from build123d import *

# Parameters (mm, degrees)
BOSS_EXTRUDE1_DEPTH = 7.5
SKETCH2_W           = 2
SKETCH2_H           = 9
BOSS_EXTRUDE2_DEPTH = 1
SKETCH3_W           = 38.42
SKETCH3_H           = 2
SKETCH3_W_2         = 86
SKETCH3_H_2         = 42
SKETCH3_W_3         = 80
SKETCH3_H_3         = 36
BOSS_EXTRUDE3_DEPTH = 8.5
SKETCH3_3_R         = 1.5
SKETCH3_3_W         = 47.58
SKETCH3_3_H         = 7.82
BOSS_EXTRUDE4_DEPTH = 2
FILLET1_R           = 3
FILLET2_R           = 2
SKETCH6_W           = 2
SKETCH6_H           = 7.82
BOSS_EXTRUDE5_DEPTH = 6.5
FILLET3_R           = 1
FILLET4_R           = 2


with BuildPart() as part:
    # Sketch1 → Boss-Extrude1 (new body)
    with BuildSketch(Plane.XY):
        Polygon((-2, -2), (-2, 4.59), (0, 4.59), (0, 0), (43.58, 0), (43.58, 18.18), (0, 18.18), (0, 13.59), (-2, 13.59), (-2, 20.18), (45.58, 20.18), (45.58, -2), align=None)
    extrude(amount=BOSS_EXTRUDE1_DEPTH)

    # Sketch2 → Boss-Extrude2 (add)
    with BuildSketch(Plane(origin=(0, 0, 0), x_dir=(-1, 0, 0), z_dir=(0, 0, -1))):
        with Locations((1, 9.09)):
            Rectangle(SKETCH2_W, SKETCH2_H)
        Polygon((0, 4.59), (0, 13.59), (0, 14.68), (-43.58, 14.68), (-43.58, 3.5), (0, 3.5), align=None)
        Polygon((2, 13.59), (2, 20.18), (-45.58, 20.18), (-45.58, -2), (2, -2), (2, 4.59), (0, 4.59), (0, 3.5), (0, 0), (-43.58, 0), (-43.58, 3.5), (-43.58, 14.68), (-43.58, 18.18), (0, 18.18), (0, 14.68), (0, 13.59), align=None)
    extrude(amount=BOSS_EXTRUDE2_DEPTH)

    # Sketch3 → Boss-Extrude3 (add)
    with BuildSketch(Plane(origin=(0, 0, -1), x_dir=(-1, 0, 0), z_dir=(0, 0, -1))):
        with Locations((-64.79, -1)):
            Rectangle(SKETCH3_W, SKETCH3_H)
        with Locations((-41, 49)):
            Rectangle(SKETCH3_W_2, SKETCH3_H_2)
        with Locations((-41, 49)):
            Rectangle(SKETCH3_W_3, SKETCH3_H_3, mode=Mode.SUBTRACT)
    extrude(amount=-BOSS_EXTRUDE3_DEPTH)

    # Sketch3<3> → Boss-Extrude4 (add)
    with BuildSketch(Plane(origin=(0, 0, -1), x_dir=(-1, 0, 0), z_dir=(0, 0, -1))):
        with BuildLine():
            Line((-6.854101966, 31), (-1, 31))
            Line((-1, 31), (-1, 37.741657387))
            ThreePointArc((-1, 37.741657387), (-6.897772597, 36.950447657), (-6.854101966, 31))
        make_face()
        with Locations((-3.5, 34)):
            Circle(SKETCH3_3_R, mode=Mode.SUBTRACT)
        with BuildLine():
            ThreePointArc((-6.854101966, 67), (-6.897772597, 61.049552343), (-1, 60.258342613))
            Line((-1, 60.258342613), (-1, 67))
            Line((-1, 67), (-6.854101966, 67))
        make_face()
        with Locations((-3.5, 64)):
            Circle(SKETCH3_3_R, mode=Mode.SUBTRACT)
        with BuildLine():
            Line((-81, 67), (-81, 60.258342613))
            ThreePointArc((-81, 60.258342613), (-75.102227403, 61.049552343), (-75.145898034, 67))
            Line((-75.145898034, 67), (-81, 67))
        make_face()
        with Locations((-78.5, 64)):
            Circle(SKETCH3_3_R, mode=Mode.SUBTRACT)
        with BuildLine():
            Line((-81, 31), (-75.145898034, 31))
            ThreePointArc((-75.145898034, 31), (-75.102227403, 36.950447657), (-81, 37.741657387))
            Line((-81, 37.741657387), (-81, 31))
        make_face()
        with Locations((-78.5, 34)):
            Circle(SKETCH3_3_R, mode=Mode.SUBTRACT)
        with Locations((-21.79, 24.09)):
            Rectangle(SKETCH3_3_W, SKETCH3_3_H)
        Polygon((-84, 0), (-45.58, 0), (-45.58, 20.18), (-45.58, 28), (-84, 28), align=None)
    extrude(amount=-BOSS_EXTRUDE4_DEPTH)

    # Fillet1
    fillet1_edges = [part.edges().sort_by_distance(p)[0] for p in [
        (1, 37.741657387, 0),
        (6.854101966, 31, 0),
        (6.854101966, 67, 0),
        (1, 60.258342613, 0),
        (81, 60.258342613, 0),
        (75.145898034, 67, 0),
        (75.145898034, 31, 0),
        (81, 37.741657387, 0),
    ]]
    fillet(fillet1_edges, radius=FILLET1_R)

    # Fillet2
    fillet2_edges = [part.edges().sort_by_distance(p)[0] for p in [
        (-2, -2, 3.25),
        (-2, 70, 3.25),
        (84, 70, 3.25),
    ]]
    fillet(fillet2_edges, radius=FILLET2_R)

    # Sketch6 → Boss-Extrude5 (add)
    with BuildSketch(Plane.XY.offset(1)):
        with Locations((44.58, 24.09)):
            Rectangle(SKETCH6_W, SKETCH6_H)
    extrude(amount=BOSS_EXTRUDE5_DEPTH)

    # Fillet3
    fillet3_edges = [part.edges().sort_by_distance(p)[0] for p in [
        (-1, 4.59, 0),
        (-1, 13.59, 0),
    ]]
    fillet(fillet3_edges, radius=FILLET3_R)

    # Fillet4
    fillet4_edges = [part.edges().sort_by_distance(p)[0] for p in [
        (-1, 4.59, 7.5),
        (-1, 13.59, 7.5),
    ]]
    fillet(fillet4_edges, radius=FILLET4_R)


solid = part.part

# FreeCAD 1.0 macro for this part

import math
import FreeCAD as App
import Part
import Sketcher

V = App.Vector
Q = App.Units.Quantity


def edges_at(feature, points):
    """Names of the edges that pass closest to the given points."""
    edges = feature.Shape.Edges
    near = lambda p: min(range(len(edges)), key=lambda i: edges[i].distToShape(Part.Vertex(*p))[0])
    return sorted({f"Edge{near(p) + 1}" for p in points})

doc = App.newDocument("Part")
body = doc.addObject("PartDesign::Body", "Body")
body.AllowCompound = True

# Sketch on XY plane
sketch1 = doc.addObject("Sketcher::SketchObject", "Sketch")
body.addObject(sketch1)
sketch1.AttachmentSupport = (doc.XY_Plane, [""])
sketch1.MapMode = "FlatFace"
sketch1.addGeometry([
    Part.LineSegment(V(-2, 4.6, 0), V(-2, -2, 0)),  # 0
    Part.LineSegment(V(-2, -2, 0), V(45.6, -2, 0)),  # 1
    Part.LineSegment(V(45.6, -2, 0), V(45.6, 20.2, 0)),  # 2
    Part.LineSegment(V(45.6, 20.2, 0), V(-2, 20.2, 0)),  # 3
    Part.LineSegment(V(-2, 20.2, 0), V(-2, 13.6, 0)),  # 4
    Part.LineSegment(V(-2, 13.6, 0), V(0, 13.6, 0)),  # 5
    Part.LineSegment(V(0, 13.6, 0), V(0, 18.2, 0)),  # 6
    Part.LineSegment(V(0, 18.2, 0), V(43.6, 18.2, 0)),  # 7
    Part.LineSegment(V(43.6, 18.2, 0), V(43.6, 0, 0)),  # 8
    Part.LineSegment(V(43.6, 0, 0), V(0, 0, 0)),  # 9
    Part.LineSegment(V(0, 0, 0), V(0, 4.6, 0)),  # 10
    Part.LineSegment(V(0, 4.6, 0), V(-2, 4.6, 0)),  # 11
], False)
sketch1.addConstraint([
    Sketcher.Constraint("Coincident", 0, 2, 1, 1),
    Sketcher.Constraint("Coincident", 1, 2, 2, 1),
    Sketcher.Constraint("Coincident", 2, 2, 3, 1),
    Sketcher.Constraint("Coincident", 3, 2, 4, 1),
    Sketcher.Constraint("Coincident", 4, 2, 5, 1),
    Sketcher.Constraint("Coincident", 5, 2, 6, 1),
    Sketcher.Constraint("Coincident", 6, 2, 7, 1),
    Sketcher.Constraint("Coincident", 7, 2, 8, 1),
    Sketcher.Constraint("Coincident", 8, 2, 9, 1),
    Sketcher.Constraint("Coincident", 9, 2, 10, 1),
    Sketcher.Constraint("Coincident", 10, 2, 11, 1),
    Sketcher.Constraint("Coincident", 11, 2, 0, 1),
    Sketcher.Constraint("Vertical", 0),
    Sketcher.Constraint("Horizontal", 1),
    Sketcher.Constraint("Vertical", 2),
    Sketcher.Constraint("Horizontal", 3),
    Sketcher.Constraint("Vertical", 4),
    Sketcher.Constraint("Horizontal", 5),
    Sketcher.Constraint("Vertical", 6),
    Sketcher.Constraint("Horizontal", 7),
    Sketcher.Constraint("Vertical", 8),
    Sketcher.Constraint("Horizontal", 9),
    Sketcher.Constraint("Vertical", 10),
    Sketcher.Constraint("Horizontal", 11),
    Sketcher.Constraint("Coincident", 9, 2, -1, 1),
    Sketcher.Constraint("PointOnObject", 5, 2, -2),
    Sketcher.Constraint("Vertical", 0, 2, 3, 2),
    Sketcher.Constraint("Equal", 0, 4),
    Sketcher.Constraint("Equal", 6, 10),
    Sketcher.Constraint("DistanceX", 5, 1, 5, 2, Q("2 mm")),
    Sketcher.Constraint("DistanceY", 0, 2, -1, 1, Q("2 mm")),
    Sketcher.Constraint("DistanceX", 7, 2, 2, 2, Q("2 mm")),
    Sketcher.Constraint("DistanceY", 10, 2, 5, 2, Q("9 mm")),
    Sketcher.Constraint("DistanceX", 1, 1, 1, 2, Q("47.58 mm")),
    Sketcher.Constraint("DistanceY", 0, 2, 0, 1, Q("6.59 mm")),
])
pad1 = doc.addObject("PartDesign::Pad", "Pad")
body.addObject(pad1)
pad1.Profile = sketch1
pad1.Length = 7.5

# Sketch on XY plane
sketch2 = doc.addObject("Sketcher::SketchObject", "Sketch001")
body.addObject(sketch2)
sketch2.AttachmentSupport = (doc.XY_Plane, [""])
sketch2.MapMode = "FlatFace"
sketch2.addGeometry([
    Part.LineSegment(V(-2, 20.2, 0), V(45.6, 20.2, 0)),  # 0
    Part.LineSegment(V(45.6, 20.2, 0), V(45.6, -2, 0)),  # 1
    Part.LineSegment(V(45.6, -2, 0), V(-2, -2, 0)),  # 2
    Part.LineSegment(V(-2, -2, 0), V(-2, 20.2, 0)),  # 3
    Part.LineSegment(V(0, 14.7, 0), V(43.6, 14.7, 0)),  # 4
    Part.LineSegment(V(43.6, 14.7, 0), V(43.6, 18.2, 0)),  # 5
    Part.LineSegment(V(43.6, 18.2, 0), V(0, 18.2, 0)),  # 6
    Part.LineSegment(V(0, 18.2, 0), V(0, 14.7, 0)),  # 7
    Part.LineSegment(V(43.6, 3.5, 0), V(0, 3.5, 0)),  # 8
    Part.LineSegment(V(0, 3.5, 0), V(0, 0, 0)),  # 9
    Part.LineSegment(V(0, 0, 0), V(43.6, 0, 0)),  # 10
    Part.LineSegment(V(43.6, 0, 0), V(43.6, 3.5, 0)),  # 11
], False)
sketch2.addConstraint([
    Sketcher.Constraint("Coincident", 0, 2, 1, 1),
    Sketcher.Constraint("Coincident", 1, 2, 2, 1),
    Sketcher.Constraint("Coincident", 2, 2, 3, 1),
    Sketcher.Constraint("Coincident", 3, 2, 0, 1),
    Sketcher.Constraint("Coincident", 4, 2, 5, 1),
    Sketcher.Constraint("Coincident", 5, 2, 6, 1),
    Sketcher.Constraint("Coincident", 6, 2, 7, 1),
    Sketcher.Constraint("Coincident", 7, 2, 4, 1),
    Sketcher.Constraint("Coincident", 8, 2, 9, 1),
    Sketcher.Constraint("Coincident", 9, 2, 10, 1),
    Sketcher.Constraint("Coincident", 10, 2, 11, 1),
    Sketcher.Constraint("Coincident", 11, 2, 8, 1),
    Sketcher.Constraint("Horizontal", 0),
    Sketcher.Constraint("Vertical", 1),
    Sketcher.Constraint("Horizontal", 2),
    Sketcher.Constraint("Vertical", 3),
    Sketcher.Constraint("Horizontal", 4),
    Sketcher.Constraint("Vertical", 5),
    Sketcher.Constraint("Horizontal", 6),
    Sketcher.Constraint("Vertical", 7),
    Sketcher.Constraint("Horizontal", 8),
    Sketcher.Constraint("Vertical", 9),
    Sketcher.Constraint("Horizontal", 10),
    Sketcher.Constraint("Vertical", 11),
    Sketcher.Constraint("Coincident", 9, 2, -1, 1),
    Sketcher.Constraint("PointOnObject", 6, 2, -2),
    Sketcher.Constraint("Vertical", 5, 2, 10, 2),
    Sketcher.Constraint("Equal", 7, 9),
    Sketcher.Constraint("DistanceY", 5, 1, 5, 2, Q("3.5 mm")),
    Sketcher.Constraint("DistanceY", 1, 2, -1, 1, Q("2 mm")),
    Sketcher.Constraint("DistanceX", 2, 2, -1, 1, Q("2 mm")),
    Sketcher.Constraint("DistanceX", 4, 2, 0, 2, Q("2 mm")),
    Sketcher.Constraint("DistanceY", 5, 2, 0, 2, Q("2 mm")),
    Sketcher.Constraint("DistanceX", 0, 1, 0, 2, Q("47.58 mm")),
    Sketcher.Constraint("DistanceY", 1, 2, 1, 1, Q("22.18 mm")),
])
pad2 = doc.addObject("PartDesign::Pad", "Pad001")
body.addObject(pad2)
pad2.Profile = sketch2
pad2.Length = 1
pad2.Reversed = True

# Sketch on XY plane
sketch3 = doc.addObject("Sketcher::SketchObject", "Sketch002")
body.addObject(sketch3)
sketch3.AttachmentSupport = (doc.XY_Plane, [""])
sketch3.MapMode = "FlatFace"
sketch3.AttachmentOffset = App.Placement(V(0, 0, -1), App.Rotation())
sketch3.addGeometry([
    Part.LineSegment(V(84, 0, 0), V(84, -2, 0)),  # 0
    Part.LineSegment(V(84, -2, 0), V(45.6, -2, 0)),  # 1
    Part.LineSegment(V(45.6, -2, 0), V(45.6, 0, 0)),  # 2
    Part.LineSegment(V(45.6, 0, 0), V(84, 0, 0)),  # 3
    Part.LineSegment(V(84, 70, 0), V(84, 28, 0)),  # 4
    Part.LineSegment(V(84, 28, 0), V(-2, 28, 0)),  # 5
    Part.LineSegment(V(-2, 28, 0), V(-2, 70, 0)),  # 6
    Part.LineSegment(V(-2, 70, 0), V(84, 70, 0)),  # 7
    Part.LineSegment(V(1, 31, 0), V(81, 31, 0)),  # 8
    Part.LineSegment(V(81, 31, 0), V(81, 67, 0)),  # 9
    Part.LineSegment(V(81, 67, 0), V(1, 67, 0)),  # 10
    Part.LineSegment(V(1, 67, 0), V(1, 31, 0)),  # 11
], False)
sketch3.addConstraint([
    Sketcher.Constraint("Coincident", 0, 2, 1, 1),
    Sketcher.Constraint("Coincident", 1, 2, 2, 1),
    Sketcher.Constraint("Coincident", 2, 2, 3, 1),
    Sketcher.Constraint("Coincident", 3, 2, 0, 1),
    Sketcher.Constraint("Coincident", 4, 2, 5, 1),
    Sketcher.Constraint("Coincident", 5, 2, 6, 1),
    Sketcher.Constraint("Coincident", 6, 2, 7, 1),
    Sketcher.Constraint("Coincident", 7, 2, 4, 1),
    Sketcher.Constraint("Coincident", 8, 2, 9, 1),
    Sketcher.Constraint("Coincident", 9, 2, 10, 1),
    Sketcher.Constraint("Coincident", 10, 2, 11, 1),
    Sketcher.Constraint("Coincident", 11, 2, 8, 1),
    Sketcher.Constraint("Vertical", 0),
    Sketcher.Constraint("Horizontal", 1),
    Sketcher.Constraint("Vertical", 2),
    Sketcher.Constraint("Horizontal", 3),
    Sketcher.Constraint("Vertical", 4),
    Sketcher.Constraint("Horizontal", 5),
    Sketcher.Constraint("Vertical", 6),
    Sketcher.Constraint("Horizontal", 7),
    Sketcher.Constraint("Horizontal", 8),
    Sketcher.Constraint("Vertical", 9),
    Sketcher.Constraint("Horizontal", 10),
    Sketcher.Constraint("Vertical", 11),
    Sketcher.Constraint("PointOnObject", 2, 2, -1),
    Sketcher.Constraint("Vertical", 3, 2, 4, 2),
    Sketcher.Constraint("DistanceX", 5, 2, 5, 1, Q("86 mm")),
    Sketcher.Constraint("DistanceX", 8, 1, 8, 2, Q("80 mm")),
    Sketcher.Constraint("DistanceY", 0, 2, 0, 1, Q("2 mm")),
    Sketcher.Constraint("DistanceY", 4, 2, 4, 1, Q("42 mm")),
    Sketcher.Constraint("DistanceY", 9, 1, 9, 2, Q("36 mm")),
    Sketcher.Constraint("DistanceX", -1, 1, 0, 2, Q("84 mm")),
    Sketcher.Constraint("DistanceY", -1, 1, 4, 2, Q("28 mm")),
    Sketcher.Constraint("DistanceX", -1, 1, 8, 2, Q("81 mm")),
    Sketcher.Constraint("DistanceY", -1, 1, 8, 2, Q("31 mm")),
    Sketcher.Constraint("DistanceX", 1, 2, 1, 1, Q("38.42 mm")),
])
pad3 = doc.addObject("PartDesign::Pad", "Pad002")
body.addObject(pad3)
pad3.Profile = sketch3
pad3.Length = 8.5

# Sketch on XY plane
sketch4 = doc.addObject("Sketcher::SketchObject", "Sketch003")
body.addObject(sketch4)
sketch4.AttachmentSupport = (doc.XY_Plane, [""])
sketch4.MapMode = "FlatFace"
sketch4.AttachmentOffset = App.Placement(V(0, 0, -1), App.Rotation())
sketch4.addGeometry([
    Part.LineSegment(V(6.9, 31, 0), V(1, 31, 0)),  # 0
    Part.LineSegment(V(1, 31, 0), V(1, 37.7, 0)),  # 1
    Part.ArcOfCircle(Part.Circle(V(3.5, 34, 0), V(0, 0, 1), 4.5), math.radians(-42), math.radians(124)),  # 2
    Part.Circle(V(3.5, 34, 0), V(0, 0, 1), 1.5),  # 3
    Part.ArcOfCircle(Part.Circle(V(3.5, 64, 0), V(0, 0, 1), 4.5), math.radians(-124), math.radians(42)),  # 4
    Part.LineSegment(V(1, 60.3, 0), V(1, 67, 0)),  # 5
    Part.LineSegment(V(1, 67, 0), V(6.9, 67, 0)),  # 6
    Part.Circle(V(3.5, 64, 0), V(0, 0, 1), 1.5),  # 7
    Part.LineSegment(V(81, 67, 0), V(81, 60.3, 0)),  # 8
    Part.ArcOfCircle(Part.Circle(V(78.5, 64, 0), V(0, 0, 1), 4.5), math.radians(138), math.radians(304)),  # 9
    Part.LineSegment(V(75.1, 67, 0), V(81, 67, 0)),  # 10
    Part.Circle(V(78.5, 64, 0), V(0, 0, 1), 1.5),  # 11
    Part.LineSegment(V(81, 31, 0), V(75.1, 31, 0)),  # 12
    Part.ArcOfCircle(Part.Circle(V(78.5, 34, 0), V(0, 0, 1), 4.5), math.radians(56), math.radians(222)),  # 13
    Part.LineSegment(V(81, 37.7, 0), V(81, 31, 0)),  # 14
    Part.Circle(V(78.5, 34, 0), V(0, 0, 1), 1.5),  # 15
    Part.LineSegment(V(45.6, 20.2, 0), V(-2, 20.2, 0)),  # 16
    Part.LineSegment(V(-2, 20.2, 0), V(-2, 28, 0)),  # 17
    Part.LineSegment(V(-2, 28, 0), V(84, 28, 0)),  # 18
    Part.LineSegment(V(84, 28, 0), V(84, 0, 0)),  # 19
    Part.LineSegment(V(84, 0, 0), V(45.6, 0, 0)),  # 20
    Part.LineSegment(V(45.6, 0, 0), V(45.6, 20.2, 0)),  # 21
], False)
sketch4.addConstraint([
    Sketcher.Constraint("Coincident", 0, 2, 1, 1),
    Sketcher.Constraint("Coincident", 1, 2, 2, 2),
    Sketcher.Constraint("Coincident", 2, 1, 0, 1),
    Sketcher.Constraint("Coincident", 4, 1, 5, 1),
    Sketcher.Constraint("Coincident", 5, 2, 6, 1),
    Sketcher.Constraint("Coincident", 6, 2, 4, 2),
    Sketcher.Constraint("Coincident", 8, 2, 9, 2),
    Sketcher.Constraint("Coincident", 9, 1, 10, 1),
    Sketcher.Constraint("Coincident", 10, 2, 8, 1),
    Sketcher.Constraint("Coincident", 12, 2, 13, 2),
    Sketcher.Constraint("Coincident", 13, 1, 14, 1),
    Sketcher.Constraint("Coincident", 14, 2, 12, 1),
    Sketcher.Constraint("Coincident", 16, 2, 17, 1),
    Sketcher.Constraint("Coincident", 17, 2, 18, 1),
    Sketcher.Constraint("Coincident", 18, 2, 19, 1),
    Sketcher.Constraint("Coincident", 19, 2, 20, 1),
    Sketcher.Constraint("Coincident", 20, 2, 21, 1),
    Sketcher.Constraint("Coincident", 21, 2, 16, 1),
    Sketcher.Constraint("Horizontal", 0),
    Sketcher.Constraint("Vertical", 1),
    Sketcher.Constraint("Vertical", 5),
    Sketcher.Constraint("Horizontal", 6),
    Sketcher.Constraint("Vertical", 8),
    Sketcher.Constraint("Horizontal", 10),
    Sketcher.Constraint("Horizontal", 12),
    Sketcher.Constraint("Vertical", 14),
    Sketcher.Constraint("Horizontal", 16),
    Sketcher.Constraint("Vertical", 17),
    Sketcher.Constraint("Horizontal", 18),
    Sketcher.Constraint("Vertical", 19),
    Sketcher.Constraint("Horizontal", 20),
    Sketcher.Constraint("Vertical", 21),
    Sketcher.Constraint("Coincident", 3, 3, 2, 3),
    Sketcher.Constraint("Coincident", 7, 3, 4, 3),
    Sketcher.Constraint("Coincident", 11, 3, 9, 3),
    Sketcher.Constraint("Coincident", 15, 3, 13, 3),
    Sketcher.Constraint("Equal", 2, 4),
    Sketcher.Constraint("Equal", 3, 7),
    Sketcher.Constraint("Equal", 4, 9),
    Sketcher.Constraint("Equal", 7, 11),
    Sketcher.Constraint("Equal", 9, 13),
    Sketcher.Constraint("Equal", 11, 15),
    Sketcher.Constraint("PointOnObject", 19, 2, -1),
    Sketcher.Constraint("Horizontal", 7, 3, 9, 3),
    Sketcher.Constraint("Horizontal", 3, 3, 13, 3),
    Sketcher.Constraint("Horizontal", 4, 1, 8, 2),
    Sketcher.Constraint("Horizontal", 6, 2, 9, 1),
    Sketcher.Constraint("Horizontal", 2, 1, 12, 2),
    Sketcher.Constraint("Horizontal", 1, 2, 13, 1),
    Sketcher.Constraint("Vertical", 3, 3, 4, 3),
    Sketcher.Constraint("Vertical", 11, 3, 13, 3),
    Sketcher.Constraint("Vertical", 1, 2, 4, 1),
    Sketcher.Constraint("Vertical", 2, 1, 6, 2),
    Sketcher.Constraint("Diameter", 3, Q("3 mm")),
    Sketcher.Constraint("Radius", 2, Q("4.5 mm")),
    Sketcher.Constraint("DistanceX", 18, 1, 18, 2, Q("86 mm")),
    Sketcher.Constraint("DistanceY", 19, 2, 19, 1, Q("28 mm")),
    Sketcher.Constraint("DistanceY", -1, 1, 2, 3, Q("34 mm")),
    Sketcher.Constraint("DistanceY", -1, 1, 4, 3, Q("64 mm")),
    Sketcher.Constraint("DistanceX", -1, 1, 0, 2, Q("1 mm")),
    Sketcher.Constraint("DistanceY", -1, 1, 0, 2, Q("31 mm")),
    Sketcher.Constraint("DistanceX", -1, 1, 8, 2, Q("81 mm")),
    Sketcher.Constraint("DistanceX", 16, 2, -1, 1, Q("2 mm")),
    Sketcher.Constraint("DistanceX", 4, 3, 9, 3, Q("75 mm")),
    Sketcher.Constraint("DistanceX", 16, 2, 16, 1, Q("47.58 mm")),
    Sketcher.Constraint("DistanceY", 17, 1, 17, 2, Q("7.82 mm")),
])
pad4 = doc.addObject("PartDesign::Pad", "Pad003")
body.addObject(pad4)
pad4.Profile = sketch4
pad4.Length = 2
doc.recompute()

fillet = doc.addObject("PartDesign::Fillet", "Fillet")
body.addObject(fillet)
fillet.Base = (pad4, edges_at(pad4, [
    (1, 37.742, 0),
    (6.854, 31, 0),
    (6.854, 67, 0),
    (1, 60.258, 0),
    (81, 60.258, 0),
    (75.146, 67, 0),
    (75.146, 31, 0),
    (81, 37.742, 0),
]))
fillet.Radius = 3
doc.recompute()

fillet2 = doc.addObject("PartDesign::Fillet", "Fillet001")
body.addObject(fillet2)
fillet2.Base = (fillet, edges_at(fillet, [(-2, -2, 3.25), (-2, 70, 3.25), (84, 70, 3.25)]))
fillet2.Radius = 2

# Sketch on XY plane
sketch5 = doc.addObject("Sketcher::SketchObject", "Sketch004")
body.addObject(sketch5)
sketch5.AttachmentSupport = (doc.XY_Plane, [""])
sketch5.MapMode = "FlatFace"
sketch5.AttachmentOffset = App.Placement(V(0, 0, 1), App.Rotation())
sketch5.addGeometry([
    Part.LineSegment(V(43.6, 28, 0), V(43.6, 20.2, 0)),
    Part.LineSegment(V(43.6, 20.2, 0), V(45.6, 20.2, 0)),
    Part.LineSegment(V(45.6, 20.2, 0), V(45.6, 28, 0)),
    Part.LineSegment(V(45.6, 28, 0), V(43.6, 28, 0)),
], False)
sketch5.addConstraint([
    Sketcher.Constraint("Coincident", 0, 2, 1, 1),
    Sketcher.Constraint("Coincident", 1, 2, 2, 1),
    Sketcher.Constraint("Coincident", 2, 2, 3, 1),
    Sketcher.Constraint("Coincident", 3, 2, 0, 1),
    Sketcher.Constraint("Vertical", 0),
    Sketcher.Constraint("Horizontal", 1),
    Sketcher.Constraint("Vertical", 2),
    Sketcher.Constraint("Horizontal", 3),
    Sketcher.Constraint("DistanceX", 1, 1, 1, 2, Q("2 mm")),
    Sketcher.Constraint("DistanceY", -1, 1, 2, 2, Q("28 mm")),
    Sketcher.Constraint("DistanceY", 0, 2, 0, 1, Q("7.82 mm")),
    Sketcher.Constraint("DistanceX", -1, 1, 0, 2, Q("43.58 mm")),
])
pad5 = doc.addObject("PartDesign::Pad", "Pad004")
body.addObject(pad5)
pad5.Profile = sketch5
pad5.Length = 6.5
doc.recompute()

fillet3 = doc.addObject("PartDesign::Fillet", "Fillet002")
body.addObject(fillet3)
fillet3.Base = (pad5, edges_at(pad5, [(-1, 4.59, 0), (-1, 13.59, 0)]))
fillet3.Radius = 1
doc.recompute()

fillet4 = doc.addObject("PartDesign::Fillet", "Fillet003")
body.addObject(fillet4)
fillet4.Base = (fillet3, edges_at(fillet3, [(-1, 4.59, 7.5), (-1, 13.59, 7.5)]))
fillet4.Radius = 2

doc.recompute()
